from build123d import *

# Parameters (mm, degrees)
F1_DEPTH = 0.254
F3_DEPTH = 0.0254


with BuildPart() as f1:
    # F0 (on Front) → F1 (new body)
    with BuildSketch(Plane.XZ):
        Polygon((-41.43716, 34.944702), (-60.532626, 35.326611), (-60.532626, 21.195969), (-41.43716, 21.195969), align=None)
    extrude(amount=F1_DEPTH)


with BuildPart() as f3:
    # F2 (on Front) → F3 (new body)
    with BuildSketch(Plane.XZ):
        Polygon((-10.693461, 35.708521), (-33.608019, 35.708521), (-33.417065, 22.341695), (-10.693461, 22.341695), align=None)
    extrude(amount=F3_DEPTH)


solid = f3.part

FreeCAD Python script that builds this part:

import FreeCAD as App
import Part
import Sketcher

V = App.Vector
Q = App.Units.Quantity

doc = App.newDocument("Part")
body = doc.addObject("PartDesign::Body", "Body")

# Sketch on XZ plane
sketch1 = doc.addObject("Sketcher::SketchObject", "Sketch")
body.addObject(sketch1)
sketch1.AttachmentSupport = (doc.XZ_Plane, [""])
sketch1.MapMode = "FlatFace"
sketch1.addGeometry([
    Part.LineSegment(V(-41, 35, 0), V(-61, 35, 0)),
    Part.LineSegment(V(-61, 35, 0), V(-61, 21, 0)),
    Part.LineSegment(V(-61, 21, 0), V(-41, 21, 0)),
    Part.LineSegment(V(-41, 21, 0), V(-41, 35, 0)),
], False)
sketch1.addConstraint([
    Sketcher.Constraint("Coincident", 0, 2, 1, 1),
    Sketcher.Constraint("Coincident", 1, 2, 2, 1),
    Sketcher.Constraint("Coincident", 2, 2, 3, 1),
    Sketcher.Constraint("Coincident", 3, 2, 0, 1),
    Sketcher.Constraint("Vertical", 1),
    Sketcher.Constraint("Horizontal", 2),
    Sketcher.Constraint("Vertical", 3),
    Sketcher.Constraint("DistanceY", 1, 2, 1, 1, 14.130642),
    Sketcher.Constraint("DistanceX", 2, 1, 2, 2, 19.095466),
    Sketcher.Constraint("DistanceY", 3, 1, 3, 2, 13.748733),
    Sketcher.Constraint("DistanceY", -1, 1, 0, 2, 35.326611),
    Sketcher.Constraint("DistanceX", 2, 2, -1, 1, 41.43716),
])
pad1 = doc.addObject("PartDesign::Pad", "Pad")
body.addObject(pad1)
pad1.Profile = sketch1
pad1.Length = Q("0.01 in")
body2 = doc.addObject("PartDesign::Body", "Body001")

# Sketch on XZ plane
sketch2 = doc.addObject("Sketcher::SketchObject", "Sketch001")
body2.addObject(sketch2)
sketch2.AttachmentSupport = (doc.getObject("XZ_Plane001"), [""])
sketch2.MapMode = "FlatFace"
sketch2.addGeometry([
    Part.LineSegment(V(-11, 36, 0), V(-34, 36, 0)),
    Part.LineSegment(V(-34, 36, 0), V(-33, 22, 0)),
    Part.LineSegment(V(-33, 22, 0), V(-11, 22, 0)),
    Part.LineSegment(V(-11, 22, 0), V(-11, 36, 0)),
], False)
sketch2.addConstraint([
    Sketcher.Constraint("Coincident", 0, 2, 1, 1),
    Sketcher.Constraint("Coincident", 1, 2, 2, 1),
    Sketcher.Constraint("Coincident", 2, 2, 3, 1),
    Sketcher.Constraint("Coincident", 3, 2, 0, 1),
    Sketcher.Constraint("Horizontal", 0),
    Sketcher.Constraint("Horizontal", 2),
    Sketcher.Constraint("Vertical", 3),
    Sketcher.Constraint("Distance", 1, 13.36819),
    Sketcher.Constraint("DistanceX", 0, 2, 0, 1, 22.914558),
    Sketcher.Constraint("DistanceX", 2, 1, 2, 2, 22.723604),
    Sketcher.Constraint("DistanceX", 0, 2, -1, 1, 33.608019),
    Sketcher.Constraint("DistanceY", -1, 1, 0, 2, 35.708521),
])
pad2 = doc.addObject("PartDesign::Pad", "Pad001")
body2.addObject(pad2)
pad2.Profile = sketch2
pad2.Length = Q("0.001 in")
body.Visibility = False

doc.recompute()
